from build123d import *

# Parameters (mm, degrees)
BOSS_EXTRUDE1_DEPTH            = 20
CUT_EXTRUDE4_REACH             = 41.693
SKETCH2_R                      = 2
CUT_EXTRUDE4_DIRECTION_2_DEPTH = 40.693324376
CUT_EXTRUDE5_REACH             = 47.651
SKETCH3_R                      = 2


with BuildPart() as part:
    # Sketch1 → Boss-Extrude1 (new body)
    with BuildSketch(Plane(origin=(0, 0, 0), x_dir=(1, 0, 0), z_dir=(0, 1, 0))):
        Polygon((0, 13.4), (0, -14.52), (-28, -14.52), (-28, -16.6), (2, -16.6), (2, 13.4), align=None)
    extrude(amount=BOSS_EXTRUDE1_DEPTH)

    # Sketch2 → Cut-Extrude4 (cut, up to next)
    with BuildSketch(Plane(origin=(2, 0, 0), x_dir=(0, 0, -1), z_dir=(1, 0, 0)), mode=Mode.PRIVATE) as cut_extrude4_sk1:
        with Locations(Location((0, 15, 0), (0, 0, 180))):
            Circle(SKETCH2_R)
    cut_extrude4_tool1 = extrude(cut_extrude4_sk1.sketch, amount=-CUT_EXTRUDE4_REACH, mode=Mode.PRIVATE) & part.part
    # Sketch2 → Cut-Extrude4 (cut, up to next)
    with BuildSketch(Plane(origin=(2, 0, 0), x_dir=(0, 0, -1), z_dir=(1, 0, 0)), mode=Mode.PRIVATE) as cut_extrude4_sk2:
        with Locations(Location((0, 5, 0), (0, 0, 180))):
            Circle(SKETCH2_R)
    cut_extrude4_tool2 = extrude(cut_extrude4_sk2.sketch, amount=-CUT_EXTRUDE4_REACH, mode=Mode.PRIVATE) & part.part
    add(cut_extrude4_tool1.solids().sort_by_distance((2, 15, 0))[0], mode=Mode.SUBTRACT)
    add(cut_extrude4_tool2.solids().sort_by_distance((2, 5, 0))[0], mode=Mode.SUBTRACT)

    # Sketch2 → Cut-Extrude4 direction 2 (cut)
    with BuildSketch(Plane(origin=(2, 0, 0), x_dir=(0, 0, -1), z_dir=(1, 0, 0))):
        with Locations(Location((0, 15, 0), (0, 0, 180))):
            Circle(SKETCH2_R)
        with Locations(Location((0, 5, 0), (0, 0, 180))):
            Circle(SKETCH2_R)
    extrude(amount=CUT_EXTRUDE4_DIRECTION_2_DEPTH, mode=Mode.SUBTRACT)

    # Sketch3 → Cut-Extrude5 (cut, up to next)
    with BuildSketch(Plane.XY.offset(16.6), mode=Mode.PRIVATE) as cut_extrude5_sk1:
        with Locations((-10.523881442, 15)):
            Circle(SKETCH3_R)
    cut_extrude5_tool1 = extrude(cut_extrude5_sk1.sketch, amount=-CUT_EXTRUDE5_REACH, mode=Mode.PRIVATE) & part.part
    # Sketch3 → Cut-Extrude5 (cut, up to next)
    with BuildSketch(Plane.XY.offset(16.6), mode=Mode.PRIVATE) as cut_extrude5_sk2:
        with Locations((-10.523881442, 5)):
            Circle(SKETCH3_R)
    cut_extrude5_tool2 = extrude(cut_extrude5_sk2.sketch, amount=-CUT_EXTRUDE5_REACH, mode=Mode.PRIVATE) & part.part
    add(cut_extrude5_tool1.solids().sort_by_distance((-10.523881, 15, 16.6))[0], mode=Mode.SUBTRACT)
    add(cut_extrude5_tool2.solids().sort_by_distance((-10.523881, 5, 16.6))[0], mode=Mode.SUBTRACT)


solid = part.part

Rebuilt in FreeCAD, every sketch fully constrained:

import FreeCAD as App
import Part
import Sketcher

V = App.Vector


def add_polygon(sketch, points):
    """Adds a closed chain of lines whose ends are joined by coincident constraints."""
    first, n = sketch.GeometryCount, len(points)
    for a, b in zip(points, points[1:] + points[:1]):
        sketch.addGeometry(Part.LineSegment(App.Vector(*a, 0), App.Vector(*b, 0)), False)
    for i in range(n):
        sketch.addConstraint(Sketcher.Constraint("Coincident", first + i, 2, first + (i + 1) % n, 1))

doc = App.newDocument("Part")
body = doc.addObject("PartDesign::Body", "Body")

# Sketch on XZ plane
sketch1 = body.newObject("Sketcher::SketchObject", "Sketch")
sketch1.AttachmentSupport = (doc.getObject("XZ_Plane"), [""])
sketch1.MapMode = "FlatFace"
add_polygon(sketch1, [(0, -13.4), (0, 14.5), (-28, 14.5), (-28, 16.6), (2, 16.6), (2, -13.4)])  # lines 0-5
sketch1.addConstraint([
    Sketcher.Constraint("Vertical", 0),
    Sketcher.Constraint("Horizontal", 1),
    Sketcher.Constraint("Vertical", 2),
    Sketcher.Constraint("Horizontal", 3),
    Sketcher.Constraint("Vertical", 4),
    Sketcher.Constraint("Horizontal", 5),
    Sketcher.Constraint("PointOnObject", 0, 2, -2),
    Sketcher.Constraint("Equal", 3, 4),
    Sketcher.Constraint("DistanceX", 1, 2, 1, 1, 28.0),
    Sketcher.Constraint("DistanceX", 3, 1, 3, 2, 30.0),
    Sketcher.Constraint("DistanceY", 0, 1, 0, 2, 27.92),
    Sketcher.Constraint("DistanceY", -1, 1, 2, 2, 16.6),
])
pad1 = body.newObject("PartDesign::Pad", "Pad")
pad1.Profile = sketch1
pad1.Length = 20
pad1.Reversed = True

# Sketch on YZ plane
sketch2 = body.newObject("Sketcher::SketchObject", "Sketch001")
sketch2.AttachmentSupport = (doc.getObject("YZ_Plane"), [""])
sketch2.MapMode = "FlatFace"
sketch2.AttachmentOffset = App.Placement(V(0, 0, 2), App.Rotation())
sketch2.addGeometry(Part.Circle(V(15, 0, 0), V(0, 0, 1), 2), False)
sketch2.addConstraint([
    Sketcher.Constraint("PointOnObject", 0, 3, -1),
    Sketcher.Constraint("Diameter", 0, 4.0),
    Sketcher.Constraint("DistanceX", -1, 1, 0, 3, 15.0),
])
pocket1 = body.newObject("PartDesign::Pocket", "Pocket")
pocket1.Profile = sketch2
pocket1.Type = "UpToFirst"

# Sketch on YZ plane
sketch3 = body.newObject("Sketcher::SketchObject", "Sketch002")
sketch3.AttachmentSupport = (doc.getObject("YZ_Plane"), [""])
sketch3.MapMode = "FlatFace"
sketch3.AttachmentOffset = App.Placement(V(0, 0, 2), App.Rotation())
sketch3.addGeometry(Part.Circle(V(5, 0, 0), V(0, 0, 1), 2), False)
sketch3.addConstraint([
    Sketcher.Constraint("PointOnObject", 0, 3, -1),
    Sketcher.Constraint("Diameter", 0, 4.0),
    Sketcher.Constraint("DistanceX", -1, 1, 0, 3, 5.0),
])
pocket2 = body.newObject("PartDesign::Pocket", "Pocket001")
pocket2.Profile = sketch3
pocket2.Type = "UpToFirst"

# Sketch on YZ plane
sketch4 = body.newObject("Sketcher::SketchObject", "Sketch003")
sketch4.AttachmentSupport = (doc.getObject("YZ_Plane"), [""])
sketch4.MapMode = "FlatFace"
sketch4.AttachmentOffset = App.Placement(V(0, 0, 2), App.Rotation())
sketch4.addGeometry([
    Part.Circle(V(15, 0, 0), V(0, 0, 1), 2),
    Part.Circle(V(5, 0, 0), V(0, 0, 1), 2),
], False)
sketch4.addConstraint([
    Sketcher.Constraint("Equal", 0, 1),
    Sketcher.Constraint("PointOnObject", 0, 3, -1),
    Sketcher.Constraint("PointOnObject", 1, 3, -1),
    Sketcher.Constraint("Diameter", 0, 4.0),
    Sketcher.Constraint("DistanceX", -1, 1, 0, 3, 15.0),
    Sketcher.Constraint("DistanceX", -1, 1, 1, 3, 5.0),
])
pocket3 = body.newObject("PartDesign::Pocket", "Pocket002")
pocket3.Profile = sketch4
pocket3.Length = 40.693324
pocket3.Reversed = True

# Sketch on XY plane
sketch5 = body.newObject("Sketcher::SketchObject", "Sketch004")
sketch5.AttachmentSupport = (doc.getObject("XY_Plane"), [""])
sketch5.MapMode = "FlatFace"
sketch5.AttachmentOffset = App.Placement(V(0, 0, 16.6), App.Rotation())
sketch5.addGeometry(Part.Circle(V(-10.5, 15, 0), V(0, 0, 1), 2), False)
sketch5.addConstraint([
    Sketcher.Constraint("Diameter", 0, 4.0),
    Sketcher.Constraint("DistanceY", -1, 1, 0, 3, 15.0),
    Sketcher.Constraint("DistanceX", 0, 3, -1, 1, 10.523881),
])
pocket4 = body.newObject("PartDesign::Pocket", "Pocket003")
pocket4.Profile = sketch5
pocket4.Type = "UpToFirst"

# Sketch on XY plane
sketch6 = body.newObject("Sketcher::SketchObject", "Sketch005")
sketch6.AttachmentSupport = (doc.getObject("XY_Plane"), [""])
sketch6.MapMode = "FlatFace"
sketch6.AttachmentOffset = App.Placement(V(0, 0, 16.6), App.Rotation())
sketch6.addGeometry(Part.Circle(V(-10.5, 5, 0), V(0, 0, 1), 2), False)
sketch6.addConstraint([
    Sketcher.Constraint("Diameter", 0, 4.0),
    Sketcher.Constraint("DistanceY", -1, 1, 0, 3, 5.0),
    Sketcher.Constraint("DistanceX", 0, 3, -1, 1, 10.523881),
])
pocket5 = body.newObject("PartDesign::Pocket", "Pocket004")
pocket5.Profile = sketch6
pocket5.Type = "UpToFirst"

doc.recompute()
